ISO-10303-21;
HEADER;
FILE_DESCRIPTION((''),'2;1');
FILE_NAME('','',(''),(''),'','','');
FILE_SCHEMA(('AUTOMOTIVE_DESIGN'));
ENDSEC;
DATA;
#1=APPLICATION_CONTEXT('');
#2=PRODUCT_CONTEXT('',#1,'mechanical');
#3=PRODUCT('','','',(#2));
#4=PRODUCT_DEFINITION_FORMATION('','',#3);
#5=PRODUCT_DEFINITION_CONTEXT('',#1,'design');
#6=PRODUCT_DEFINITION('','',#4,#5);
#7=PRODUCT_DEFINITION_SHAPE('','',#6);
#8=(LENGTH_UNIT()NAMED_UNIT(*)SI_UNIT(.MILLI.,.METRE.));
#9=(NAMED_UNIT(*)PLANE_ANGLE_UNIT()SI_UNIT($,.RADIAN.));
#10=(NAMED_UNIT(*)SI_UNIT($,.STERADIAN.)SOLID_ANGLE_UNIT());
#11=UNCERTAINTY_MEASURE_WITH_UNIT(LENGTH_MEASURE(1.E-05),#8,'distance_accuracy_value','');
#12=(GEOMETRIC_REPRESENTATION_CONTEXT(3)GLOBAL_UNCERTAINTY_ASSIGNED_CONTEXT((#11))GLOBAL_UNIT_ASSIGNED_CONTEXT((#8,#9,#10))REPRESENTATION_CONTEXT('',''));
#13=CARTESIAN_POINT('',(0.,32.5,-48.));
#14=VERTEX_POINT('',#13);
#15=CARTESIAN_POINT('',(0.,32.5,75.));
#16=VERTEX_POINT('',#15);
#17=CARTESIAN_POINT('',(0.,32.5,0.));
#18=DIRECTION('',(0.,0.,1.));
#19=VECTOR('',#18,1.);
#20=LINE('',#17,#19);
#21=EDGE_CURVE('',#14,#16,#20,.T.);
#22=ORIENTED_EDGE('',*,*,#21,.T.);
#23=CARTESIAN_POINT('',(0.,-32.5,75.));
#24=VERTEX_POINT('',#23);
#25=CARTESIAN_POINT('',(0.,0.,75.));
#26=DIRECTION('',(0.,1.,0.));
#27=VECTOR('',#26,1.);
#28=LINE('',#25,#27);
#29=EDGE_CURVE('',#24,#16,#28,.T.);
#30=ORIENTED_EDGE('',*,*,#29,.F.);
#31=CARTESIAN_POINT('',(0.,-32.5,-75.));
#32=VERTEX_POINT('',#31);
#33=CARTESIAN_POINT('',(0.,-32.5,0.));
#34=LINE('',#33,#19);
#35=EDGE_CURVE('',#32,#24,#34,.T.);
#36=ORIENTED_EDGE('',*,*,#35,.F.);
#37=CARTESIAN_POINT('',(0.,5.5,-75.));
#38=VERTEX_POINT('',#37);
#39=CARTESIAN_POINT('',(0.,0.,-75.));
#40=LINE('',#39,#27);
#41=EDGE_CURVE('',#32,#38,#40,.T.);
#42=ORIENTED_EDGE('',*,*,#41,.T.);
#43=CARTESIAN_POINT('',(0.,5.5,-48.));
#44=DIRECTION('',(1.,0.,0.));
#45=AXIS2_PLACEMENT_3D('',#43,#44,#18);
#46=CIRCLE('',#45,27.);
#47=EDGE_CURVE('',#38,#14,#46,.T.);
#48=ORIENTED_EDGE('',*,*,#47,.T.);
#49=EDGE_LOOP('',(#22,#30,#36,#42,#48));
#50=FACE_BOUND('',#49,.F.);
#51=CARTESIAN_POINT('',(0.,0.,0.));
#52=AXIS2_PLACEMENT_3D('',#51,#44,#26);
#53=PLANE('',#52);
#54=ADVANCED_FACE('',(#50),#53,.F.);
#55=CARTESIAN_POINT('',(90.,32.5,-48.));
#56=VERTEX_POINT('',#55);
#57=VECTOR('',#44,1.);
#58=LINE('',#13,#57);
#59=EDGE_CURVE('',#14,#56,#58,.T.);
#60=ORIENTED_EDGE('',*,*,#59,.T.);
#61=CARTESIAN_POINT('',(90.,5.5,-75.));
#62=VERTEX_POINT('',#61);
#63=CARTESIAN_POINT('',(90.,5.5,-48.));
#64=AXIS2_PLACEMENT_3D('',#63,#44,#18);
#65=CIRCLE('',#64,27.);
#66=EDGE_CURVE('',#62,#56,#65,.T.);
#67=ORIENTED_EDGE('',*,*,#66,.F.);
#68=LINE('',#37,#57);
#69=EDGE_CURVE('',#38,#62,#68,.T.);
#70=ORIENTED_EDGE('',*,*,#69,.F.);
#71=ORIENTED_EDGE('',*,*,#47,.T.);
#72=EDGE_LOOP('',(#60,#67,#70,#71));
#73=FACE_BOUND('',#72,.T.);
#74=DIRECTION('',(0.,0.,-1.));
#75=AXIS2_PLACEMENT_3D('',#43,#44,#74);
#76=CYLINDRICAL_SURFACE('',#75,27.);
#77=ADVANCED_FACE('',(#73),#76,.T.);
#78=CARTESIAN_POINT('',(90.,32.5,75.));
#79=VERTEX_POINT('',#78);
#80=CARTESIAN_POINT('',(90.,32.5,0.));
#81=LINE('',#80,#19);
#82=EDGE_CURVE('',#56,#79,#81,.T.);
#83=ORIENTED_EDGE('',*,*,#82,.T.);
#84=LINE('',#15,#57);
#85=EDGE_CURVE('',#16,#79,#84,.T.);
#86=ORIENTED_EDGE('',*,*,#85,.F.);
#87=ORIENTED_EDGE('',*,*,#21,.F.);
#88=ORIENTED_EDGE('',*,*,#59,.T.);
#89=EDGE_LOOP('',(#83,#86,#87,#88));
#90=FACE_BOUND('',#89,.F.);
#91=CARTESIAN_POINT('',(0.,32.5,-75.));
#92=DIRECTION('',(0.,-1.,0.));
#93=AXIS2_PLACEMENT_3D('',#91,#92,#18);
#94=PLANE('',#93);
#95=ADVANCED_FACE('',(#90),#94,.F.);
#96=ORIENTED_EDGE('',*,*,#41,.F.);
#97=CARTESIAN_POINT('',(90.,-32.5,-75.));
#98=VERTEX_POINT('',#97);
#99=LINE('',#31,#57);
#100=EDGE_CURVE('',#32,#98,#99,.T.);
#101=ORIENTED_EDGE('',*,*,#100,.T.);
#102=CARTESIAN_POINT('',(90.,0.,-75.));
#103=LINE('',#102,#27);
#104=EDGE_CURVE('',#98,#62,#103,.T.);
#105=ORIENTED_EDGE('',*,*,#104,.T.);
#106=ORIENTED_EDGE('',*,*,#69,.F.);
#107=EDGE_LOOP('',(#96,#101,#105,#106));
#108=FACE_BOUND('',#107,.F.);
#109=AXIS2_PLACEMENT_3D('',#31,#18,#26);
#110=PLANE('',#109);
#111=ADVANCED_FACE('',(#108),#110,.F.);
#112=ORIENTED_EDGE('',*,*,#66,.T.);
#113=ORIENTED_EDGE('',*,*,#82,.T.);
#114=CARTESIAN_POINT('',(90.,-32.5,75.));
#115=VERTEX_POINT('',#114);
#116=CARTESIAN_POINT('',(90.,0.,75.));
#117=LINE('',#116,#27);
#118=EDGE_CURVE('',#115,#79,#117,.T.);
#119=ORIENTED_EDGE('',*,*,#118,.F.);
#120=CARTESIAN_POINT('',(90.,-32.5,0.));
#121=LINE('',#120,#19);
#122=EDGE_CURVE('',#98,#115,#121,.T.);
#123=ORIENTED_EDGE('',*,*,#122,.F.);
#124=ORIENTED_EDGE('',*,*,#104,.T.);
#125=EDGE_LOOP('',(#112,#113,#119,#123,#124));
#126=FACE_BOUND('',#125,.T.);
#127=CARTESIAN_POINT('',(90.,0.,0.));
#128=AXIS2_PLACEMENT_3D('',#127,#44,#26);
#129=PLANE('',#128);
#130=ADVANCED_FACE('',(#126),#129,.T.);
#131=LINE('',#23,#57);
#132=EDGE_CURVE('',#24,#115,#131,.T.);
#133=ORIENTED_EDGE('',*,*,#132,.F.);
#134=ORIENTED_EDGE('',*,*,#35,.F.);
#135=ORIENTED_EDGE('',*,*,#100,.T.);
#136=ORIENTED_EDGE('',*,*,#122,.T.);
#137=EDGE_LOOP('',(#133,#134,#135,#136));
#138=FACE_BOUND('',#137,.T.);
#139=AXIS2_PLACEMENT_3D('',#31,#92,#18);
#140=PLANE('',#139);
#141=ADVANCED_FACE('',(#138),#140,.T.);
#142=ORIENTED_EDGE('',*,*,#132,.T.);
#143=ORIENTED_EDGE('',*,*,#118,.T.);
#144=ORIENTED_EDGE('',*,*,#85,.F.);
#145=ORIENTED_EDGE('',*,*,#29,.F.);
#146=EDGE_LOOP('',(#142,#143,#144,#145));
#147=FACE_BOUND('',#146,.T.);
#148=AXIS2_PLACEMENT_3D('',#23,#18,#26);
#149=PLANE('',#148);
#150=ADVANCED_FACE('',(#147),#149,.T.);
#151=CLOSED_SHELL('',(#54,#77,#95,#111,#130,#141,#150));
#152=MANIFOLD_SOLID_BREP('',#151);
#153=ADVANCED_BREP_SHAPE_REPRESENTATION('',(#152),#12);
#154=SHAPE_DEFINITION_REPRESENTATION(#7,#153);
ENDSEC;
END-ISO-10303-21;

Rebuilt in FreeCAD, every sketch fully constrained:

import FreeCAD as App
import Part
import Sketcher
from FreeCAD import Vector
Q = App.Units.Quantity


def edges_at(feature, points):
    """Names of the edges that pass closest to the given points."""
    edges = feature.Shape.Edges
    near = lambda p: min(range(len(edges)), key=lambda i: edges[i].distToShape(Part.Vertex(*p))[0])
    return sorted({f"Edge{near(p) + 1}" for p in points})

doc = App.newDocument("Part")
body = doc.addObject("PartDesign::Body", "Body")

# Sketch on YZ plane
sketch1 = body.newObject("Sketcher::SketchObject", "Sketch")
sketch1.AttachmentSupport = (doc.getObject("YZ_Plane"), [""])
sketch1.MapMode = "FlatFace"
sketch1.addGeometry([
    Part.LineSegment(Vector(-32, 75, 0), Vector(-32, -75, 0)),
    Part.LineSegment(Vector(-32, -75, 0), Vector(32, -75, 0)),
    Part.LineSegment(Vector(32, -75, 0), Vector(32, 75, 0)),
    Part.LineSegment(Vector(32, 75, 0), Vector(-32, 75, 0)),
], False)
sketch1.addConstraint([
    Sketcher.Constraint("Coincident", 0, 2, 1, 1),
    Sketcher.Constraint("Coincident", 1, 2, 2, 1),
    Sketcher.Constraint("Coincident", 2, 2, 3, 1),
    Sketcher.Constraint("Coincident", 3, 2, 0, 1),
    Sketcher.Constraint("Vertical", 0),
    Sketcher.Constraint("Horizontal", 1),
    Sketcher.Constraint("Vertical", 2),
    Sketcher.Constraint("Horizontal", 3),
    Sketcher.Constraint("Symmetric", 0, 2, 2, 2, -1, 1),
    Sketcher.Constraint("DistanceX", 1, 1, 1, 2, Q("65 mm")),
    Sketcher.Constraint("DistanceY", 0, 2, 0, 1, Q("150 mm")),
])
pad1 = body.newObject("PartDesign::Pad", "Pad")
pad1.Profile = sketch1
pad1.Length = 90
doc.recompute()

fillet = body.newObject("PartDesign::Fillet", "Fillet")
fillet.Base = (pad1, edges_at(pad1, [(45, 32.5, -75)]))
fillet.Radius = 27

doc.recompute()
